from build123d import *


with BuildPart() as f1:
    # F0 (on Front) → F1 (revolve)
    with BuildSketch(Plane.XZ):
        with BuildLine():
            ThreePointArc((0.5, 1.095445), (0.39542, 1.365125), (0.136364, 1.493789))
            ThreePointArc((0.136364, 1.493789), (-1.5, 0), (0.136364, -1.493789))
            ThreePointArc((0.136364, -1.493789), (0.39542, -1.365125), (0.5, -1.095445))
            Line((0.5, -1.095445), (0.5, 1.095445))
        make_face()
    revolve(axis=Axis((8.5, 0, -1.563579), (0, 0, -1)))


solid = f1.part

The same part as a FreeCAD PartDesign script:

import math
import FreeCAD as App
import Part
import Sketcher

V = App.Vector

doc = App.newDocument("Part")
body = doc.addObject("PartDesign::Body", "Body")

# Sketch on XZ plane
sketch1 = body.newObject("Sketcher::SketchObject", "Sketch")
sketch1.AttachmentSupport = (doc.getObject("XZ_Plane"), [""])
sketch1.MapMode = "FlatFace"
sketch1.addGeometry([
    Part.ArcOfCircle(Part.Circle(V(0.1, 1.1, 0), V(0, 0, 1), 0.4), math.radians(0), math.radians(85)),
    Part.ArcOfCircle(Part.Circle(V(0, 0, 0), V(0, 0, 1), 1.5), math.radians(85), math.radians(275)),
    Part.ArcOfCircle(Part.Circle(V(0.1, -1.1, 0), V(0, 0, 1), 0.4), math.radians(-85), math.radians(0)),
    Part.LineSegment(V(0.5, -1.1, 0), V(0.5, 1.1, 0)),
], False)
sketch1.addGeometry(Part.LineSegment(V(8.5, 1.49, 0), V(8.5, -1.49, 0)), True)  # axis
sketch1.addConstraint([
    Sketcher.Constraint("Tangent", 0, 2, 1, 1),
    Sketcher.Constraint("Tangent", 1, 2, 2, 1),
    Sketcher.Constraint("Tangent", 2, 2, 3, 1),
    Sketcher.Constraint("Tangent", 3, 2, 0, 1),
    Sketcher.Constraint("Vertical", 3),
    Sketcher.Constraint("Vertical", 4),
    Sketcher.Constraint("Coincident", 1, 3, -1, 1),
    Sketcher.Constraint("Equal", 0, 2),
    Sketcher.Constraint("Horizontal", 0, 2, 4, 1),
    Sketcher.Constraint("Horizontal", 1, 2, 4, 2),
    Sketcher.Constraint("Radius", 0, 0.4),
    Sketcher.Constraint("Radius", 1, 1.5),
    Sketcher.Constraint("DistanceX", 3, 2, 4, 1, 8.0),
    Sketcher.Constraint("DistanceX", -1, 1, 0, 3, 0.1),
])
revolution = body.newObject("PartDesign::Revolution", "Revolution")
revolution.Profile = sketch1
revolution.ReferenceAxis = (sketch1, ["Axis0"])
revolution.Angle = 360

doc.recompute()
